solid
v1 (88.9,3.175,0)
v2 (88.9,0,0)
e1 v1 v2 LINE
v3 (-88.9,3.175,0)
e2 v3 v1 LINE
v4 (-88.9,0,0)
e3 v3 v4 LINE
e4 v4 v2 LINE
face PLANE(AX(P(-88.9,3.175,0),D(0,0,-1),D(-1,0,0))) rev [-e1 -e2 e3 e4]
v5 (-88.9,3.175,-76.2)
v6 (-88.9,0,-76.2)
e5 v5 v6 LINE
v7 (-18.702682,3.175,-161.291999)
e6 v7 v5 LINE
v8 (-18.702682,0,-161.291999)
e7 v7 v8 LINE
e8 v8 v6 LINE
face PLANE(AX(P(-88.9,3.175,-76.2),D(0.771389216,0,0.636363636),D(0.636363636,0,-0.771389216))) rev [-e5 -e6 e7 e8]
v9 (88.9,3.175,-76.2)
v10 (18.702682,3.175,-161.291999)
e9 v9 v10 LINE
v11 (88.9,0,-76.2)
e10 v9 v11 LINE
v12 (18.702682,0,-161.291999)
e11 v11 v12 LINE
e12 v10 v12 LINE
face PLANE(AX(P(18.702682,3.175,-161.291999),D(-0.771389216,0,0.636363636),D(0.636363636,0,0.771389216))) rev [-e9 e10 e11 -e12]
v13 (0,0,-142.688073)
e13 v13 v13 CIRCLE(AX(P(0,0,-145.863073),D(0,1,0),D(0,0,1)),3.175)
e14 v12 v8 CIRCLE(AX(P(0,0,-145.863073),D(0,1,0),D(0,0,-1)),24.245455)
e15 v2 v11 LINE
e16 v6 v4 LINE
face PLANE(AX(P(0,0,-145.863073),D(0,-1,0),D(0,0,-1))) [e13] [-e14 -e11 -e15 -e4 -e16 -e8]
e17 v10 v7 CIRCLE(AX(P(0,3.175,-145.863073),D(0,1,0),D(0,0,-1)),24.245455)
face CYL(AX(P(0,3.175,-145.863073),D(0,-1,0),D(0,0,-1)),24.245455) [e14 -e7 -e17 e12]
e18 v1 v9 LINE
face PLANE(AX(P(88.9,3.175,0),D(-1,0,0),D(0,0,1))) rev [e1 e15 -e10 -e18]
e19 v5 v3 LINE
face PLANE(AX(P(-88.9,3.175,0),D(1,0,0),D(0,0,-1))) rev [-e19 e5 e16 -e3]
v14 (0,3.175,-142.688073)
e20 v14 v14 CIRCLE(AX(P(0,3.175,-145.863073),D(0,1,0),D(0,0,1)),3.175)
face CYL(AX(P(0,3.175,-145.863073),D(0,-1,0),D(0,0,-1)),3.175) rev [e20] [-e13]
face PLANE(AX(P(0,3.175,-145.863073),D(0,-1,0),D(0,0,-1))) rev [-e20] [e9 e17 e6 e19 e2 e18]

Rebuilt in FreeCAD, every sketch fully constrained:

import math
import FreeCAD as App
import Part
import Sketcher

V = App.Vector
Q = App.Units.Quantity

doc = App.newDocument("Part")
body = doc.addObject("PartDesign::Body", "Body")

# Sketch on XZ plane
sketch1 = body.newObject("Sketcher::SketchObject", "Sketch")
sketch1.AttachmentSupport = (doc.getObject("XZ_Plane"), [""])
sketch1.MapMode = "FlatFace"
sketch1.addGeometry(Part.LineSegment(V(-88.9, 0, 0), V(88.9, 0, 0)), False)
sketch1.addGeometry(Part.LineSegment(V(88.9, 0, 0), V(88.9, -76.2, 0)), False)
sketch1.addGeometry(Part.LineSegment(V(88.9, -76.2, 0), V(18.7, -161.3, 0)), False)
sketch1.addGeometry(Part.ArcOfCircle(Part.Circle(V(0, -145.9, 0), V(0, 0, 1), 24.2), math.radians(-140), math.radians(-40)), False)
sketch1.addGeometry(Part.LineSegment(V(-18.7, -161.3, 0), V(-88.9, -76.2, 0)), False)
sketch1.addGeometry(Part.LineSegment(V(-88.9, -76.2, 0), V(-88.9, 0, 0)), False)
sketch1.addGeometry(Part.Circle(V(0, -145.9, 0), V(0, 0, 1), 3.2), False)
sketch1.addConstraint(Sketcher.Constraint("Coincident", 0, 2, 1, 1))
sketch1.addConstraint(Sketcher.Constraint("Coincident", 1, 2, 2, 1))
sketch1.addConstraint(Sketcher.Constraint("Tangent", 2, 2, 3, 2))
sketch1.addConstraint(Sketcher.Constraint("Tangent", 3, 1, 4, 1))
sketch1.addConstraint(Sketcher.Constraint("Coincident", 4, 2, 5, 1))
sketch1.addConstraint(Sketcher.Constraint("Coincident", 5, 2, 0, 1))
sketch1.addConstraint(Sketcher.Constraint("Horizontal", 0))
sketch1.addConstraint(Sketcher.Constraint("Vertical", 1))
sketch1.addConstraint(Sketcher.Constraint("Vertical", 5))
sketch1.addConstraint(Sketcher.Constraint("Coincident", 6, 3, 3, 3))
sketch1.addConstraint(Sketcher.Constraint("Symmetric", 0, 2, 5, 2, -1, 1))
sketch1.addConstraint(Sketcher.Constraint("Symmetric", 2, 2, 3, 1, -2))
sketch1.addConstraint(Sketcher.Constraint("Diameter", 6, Q("0.25 in")))
sketch1.addConstraint(Sketcher.Constraint("DistanceX", 0, 1, 0, 2, Q("7 in")))
sketch1.addConstraint(Sketcher.Constraint("DistanceY", 1, 2, 1, 1, Q("3 in")))
sketch1.addConstraint(Sketcher.Constraint("Radius", 3, 24.245455))
sketch1.addConstraint(Sketcher.Constraint("DistanceY", 2, 2, -1, 1, 161.291999))
pad1 = body.newObject("PartDesign::Pad", "Pad")
pad1.Profile = sketch1
pad1.Length = Q("0.125 in")
pad1.Reversed = True

doc.recompute()
